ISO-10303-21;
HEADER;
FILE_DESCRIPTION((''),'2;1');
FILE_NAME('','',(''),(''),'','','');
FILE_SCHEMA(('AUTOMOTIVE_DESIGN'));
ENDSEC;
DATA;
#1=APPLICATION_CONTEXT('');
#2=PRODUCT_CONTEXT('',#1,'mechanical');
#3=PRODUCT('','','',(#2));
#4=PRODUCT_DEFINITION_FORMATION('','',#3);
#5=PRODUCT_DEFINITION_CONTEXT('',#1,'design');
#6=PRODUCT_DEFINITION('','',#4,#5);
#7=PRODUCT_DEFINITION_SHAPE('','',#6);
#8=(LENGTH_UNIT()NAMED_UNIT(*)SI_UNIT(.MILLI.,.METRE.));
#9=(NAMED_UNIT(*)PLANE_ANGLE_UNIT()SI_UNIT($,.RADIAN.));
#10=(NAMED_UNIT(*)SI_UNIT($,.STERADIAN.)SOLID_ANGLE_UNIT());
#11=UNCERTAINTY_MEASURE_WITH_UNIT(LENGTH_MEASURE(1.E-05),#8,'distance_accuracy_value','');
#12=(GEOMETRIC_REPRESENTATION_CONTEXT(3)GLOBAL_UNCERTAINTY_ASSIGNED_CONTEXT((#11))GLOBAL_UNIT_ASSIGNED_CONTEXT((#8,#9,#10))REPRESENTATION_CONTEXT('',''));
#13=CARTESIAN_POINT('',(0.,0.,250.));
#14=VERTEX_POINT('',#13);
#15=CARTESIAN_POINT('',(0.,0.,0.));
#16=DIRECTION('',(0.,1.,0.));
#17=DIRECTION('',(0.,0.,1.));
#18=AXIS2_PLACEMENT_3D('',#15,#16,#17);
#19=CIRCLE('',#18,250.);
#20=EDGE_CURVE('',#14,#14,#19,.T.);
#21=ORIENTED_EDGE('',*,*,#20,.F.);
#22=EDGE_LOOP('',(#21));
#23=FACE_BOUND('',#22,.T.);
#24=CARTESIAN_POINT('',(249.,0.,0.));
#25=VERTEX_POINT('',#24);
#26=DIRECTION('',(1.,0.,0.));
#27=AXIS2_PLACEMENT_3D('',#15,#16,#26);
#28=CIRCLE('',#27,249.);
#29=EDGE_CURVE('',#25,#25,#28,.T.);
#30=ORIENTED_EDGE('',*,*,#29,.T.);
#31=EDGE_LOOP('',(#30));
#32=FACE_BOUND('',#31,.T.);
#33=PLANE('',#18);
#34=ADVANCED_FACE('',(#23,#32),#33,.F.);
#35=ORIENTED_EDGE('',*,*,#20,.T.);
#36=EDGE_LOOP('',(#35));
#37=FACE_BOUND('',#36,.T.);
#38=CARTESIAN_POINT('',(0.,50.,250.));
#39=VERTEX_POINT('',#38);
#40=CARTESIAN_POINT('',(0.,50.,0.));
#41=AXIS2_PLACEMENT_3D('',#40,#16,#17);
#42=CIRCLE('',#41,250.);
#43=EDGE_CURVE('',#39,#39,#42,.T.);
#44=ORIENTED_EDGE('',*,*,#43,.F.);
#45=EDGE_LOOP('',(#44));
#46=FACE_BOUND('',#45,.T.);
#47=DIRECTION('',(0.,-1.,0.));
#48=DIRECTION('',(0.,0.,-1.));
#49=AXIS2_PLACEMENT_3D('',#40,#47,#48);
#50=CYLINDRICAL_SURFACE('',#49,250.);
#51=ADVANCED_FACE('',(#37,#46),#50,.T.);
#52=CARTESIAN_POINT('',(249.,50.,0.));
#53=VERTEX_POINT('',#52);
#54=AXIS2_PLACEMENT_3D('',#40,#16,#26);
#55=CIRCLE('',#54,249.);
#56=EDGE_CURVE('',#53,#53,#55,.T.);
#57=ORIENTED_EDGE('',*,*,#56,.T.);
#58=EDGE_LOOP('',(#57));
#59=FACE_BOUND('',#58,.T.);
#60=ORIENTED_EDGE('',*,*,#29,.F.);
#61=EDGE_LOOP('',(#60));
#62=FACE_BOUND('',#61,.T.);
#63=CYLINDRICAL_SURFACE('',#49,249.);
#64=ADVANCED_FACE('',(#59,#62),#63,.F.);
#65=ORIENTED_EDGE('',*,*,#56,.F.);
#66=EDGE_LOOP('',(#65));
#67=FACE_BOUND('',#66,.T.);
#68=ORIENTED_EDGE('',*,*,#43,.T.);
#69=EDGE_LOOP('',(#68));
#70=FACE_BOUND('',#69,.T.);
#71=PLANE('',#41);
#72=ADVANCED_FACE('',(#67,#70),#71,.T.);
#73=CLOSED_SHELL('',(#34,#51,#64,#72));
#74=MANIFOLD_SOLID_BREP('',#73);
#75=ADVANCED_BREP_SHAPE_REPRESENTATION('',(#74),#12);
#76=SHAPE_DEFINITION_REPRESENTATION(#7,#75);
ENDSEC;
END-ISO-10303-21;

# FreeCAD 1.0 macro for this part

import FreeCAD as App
import Part
import Sketcher

V = App.Vector
Q = App.Units.Quantity

doc = App.newDocument("Part")
body = doc.addObject("PartDesign::Body", "Body")

sketch1 = body.newObject("Sketcher::SketchObject", "Sketch")
sketch1.AttachmentSupport = (doc.getObject("XZ_Plane"), [""])
sketch1.MapMode = "FlatFace"
sketch1.addGeometry(Part.Circle(V(0, 0, 0), V(0, 0, 1), 250), False)
sketch1.addGeometry(Part.Circle(V(0, 0, 0), V(0, 0, 1), 249), False)
sketch1.addConstraint(Sketcher.Constraint("Coincident", 0, 3, -1, 1))
sketch1.addConstraint(Sketcher.Constraint("Coincident", 1, 3, -1, 1))
sketch1.addConstraint(Sketcher.Constraint("Diameter", 0, Q("500 mm")))
sketch1.addConstraint(Sketcher.Constraint("Diameter", 1, Q("498 mm")))
pad1 = body.newObject("PartDesign::Pad", "Pad")
pad1.Profile = sketch1
pad1.Length = 50
pad1.Reversed = True

doc.recompute()
